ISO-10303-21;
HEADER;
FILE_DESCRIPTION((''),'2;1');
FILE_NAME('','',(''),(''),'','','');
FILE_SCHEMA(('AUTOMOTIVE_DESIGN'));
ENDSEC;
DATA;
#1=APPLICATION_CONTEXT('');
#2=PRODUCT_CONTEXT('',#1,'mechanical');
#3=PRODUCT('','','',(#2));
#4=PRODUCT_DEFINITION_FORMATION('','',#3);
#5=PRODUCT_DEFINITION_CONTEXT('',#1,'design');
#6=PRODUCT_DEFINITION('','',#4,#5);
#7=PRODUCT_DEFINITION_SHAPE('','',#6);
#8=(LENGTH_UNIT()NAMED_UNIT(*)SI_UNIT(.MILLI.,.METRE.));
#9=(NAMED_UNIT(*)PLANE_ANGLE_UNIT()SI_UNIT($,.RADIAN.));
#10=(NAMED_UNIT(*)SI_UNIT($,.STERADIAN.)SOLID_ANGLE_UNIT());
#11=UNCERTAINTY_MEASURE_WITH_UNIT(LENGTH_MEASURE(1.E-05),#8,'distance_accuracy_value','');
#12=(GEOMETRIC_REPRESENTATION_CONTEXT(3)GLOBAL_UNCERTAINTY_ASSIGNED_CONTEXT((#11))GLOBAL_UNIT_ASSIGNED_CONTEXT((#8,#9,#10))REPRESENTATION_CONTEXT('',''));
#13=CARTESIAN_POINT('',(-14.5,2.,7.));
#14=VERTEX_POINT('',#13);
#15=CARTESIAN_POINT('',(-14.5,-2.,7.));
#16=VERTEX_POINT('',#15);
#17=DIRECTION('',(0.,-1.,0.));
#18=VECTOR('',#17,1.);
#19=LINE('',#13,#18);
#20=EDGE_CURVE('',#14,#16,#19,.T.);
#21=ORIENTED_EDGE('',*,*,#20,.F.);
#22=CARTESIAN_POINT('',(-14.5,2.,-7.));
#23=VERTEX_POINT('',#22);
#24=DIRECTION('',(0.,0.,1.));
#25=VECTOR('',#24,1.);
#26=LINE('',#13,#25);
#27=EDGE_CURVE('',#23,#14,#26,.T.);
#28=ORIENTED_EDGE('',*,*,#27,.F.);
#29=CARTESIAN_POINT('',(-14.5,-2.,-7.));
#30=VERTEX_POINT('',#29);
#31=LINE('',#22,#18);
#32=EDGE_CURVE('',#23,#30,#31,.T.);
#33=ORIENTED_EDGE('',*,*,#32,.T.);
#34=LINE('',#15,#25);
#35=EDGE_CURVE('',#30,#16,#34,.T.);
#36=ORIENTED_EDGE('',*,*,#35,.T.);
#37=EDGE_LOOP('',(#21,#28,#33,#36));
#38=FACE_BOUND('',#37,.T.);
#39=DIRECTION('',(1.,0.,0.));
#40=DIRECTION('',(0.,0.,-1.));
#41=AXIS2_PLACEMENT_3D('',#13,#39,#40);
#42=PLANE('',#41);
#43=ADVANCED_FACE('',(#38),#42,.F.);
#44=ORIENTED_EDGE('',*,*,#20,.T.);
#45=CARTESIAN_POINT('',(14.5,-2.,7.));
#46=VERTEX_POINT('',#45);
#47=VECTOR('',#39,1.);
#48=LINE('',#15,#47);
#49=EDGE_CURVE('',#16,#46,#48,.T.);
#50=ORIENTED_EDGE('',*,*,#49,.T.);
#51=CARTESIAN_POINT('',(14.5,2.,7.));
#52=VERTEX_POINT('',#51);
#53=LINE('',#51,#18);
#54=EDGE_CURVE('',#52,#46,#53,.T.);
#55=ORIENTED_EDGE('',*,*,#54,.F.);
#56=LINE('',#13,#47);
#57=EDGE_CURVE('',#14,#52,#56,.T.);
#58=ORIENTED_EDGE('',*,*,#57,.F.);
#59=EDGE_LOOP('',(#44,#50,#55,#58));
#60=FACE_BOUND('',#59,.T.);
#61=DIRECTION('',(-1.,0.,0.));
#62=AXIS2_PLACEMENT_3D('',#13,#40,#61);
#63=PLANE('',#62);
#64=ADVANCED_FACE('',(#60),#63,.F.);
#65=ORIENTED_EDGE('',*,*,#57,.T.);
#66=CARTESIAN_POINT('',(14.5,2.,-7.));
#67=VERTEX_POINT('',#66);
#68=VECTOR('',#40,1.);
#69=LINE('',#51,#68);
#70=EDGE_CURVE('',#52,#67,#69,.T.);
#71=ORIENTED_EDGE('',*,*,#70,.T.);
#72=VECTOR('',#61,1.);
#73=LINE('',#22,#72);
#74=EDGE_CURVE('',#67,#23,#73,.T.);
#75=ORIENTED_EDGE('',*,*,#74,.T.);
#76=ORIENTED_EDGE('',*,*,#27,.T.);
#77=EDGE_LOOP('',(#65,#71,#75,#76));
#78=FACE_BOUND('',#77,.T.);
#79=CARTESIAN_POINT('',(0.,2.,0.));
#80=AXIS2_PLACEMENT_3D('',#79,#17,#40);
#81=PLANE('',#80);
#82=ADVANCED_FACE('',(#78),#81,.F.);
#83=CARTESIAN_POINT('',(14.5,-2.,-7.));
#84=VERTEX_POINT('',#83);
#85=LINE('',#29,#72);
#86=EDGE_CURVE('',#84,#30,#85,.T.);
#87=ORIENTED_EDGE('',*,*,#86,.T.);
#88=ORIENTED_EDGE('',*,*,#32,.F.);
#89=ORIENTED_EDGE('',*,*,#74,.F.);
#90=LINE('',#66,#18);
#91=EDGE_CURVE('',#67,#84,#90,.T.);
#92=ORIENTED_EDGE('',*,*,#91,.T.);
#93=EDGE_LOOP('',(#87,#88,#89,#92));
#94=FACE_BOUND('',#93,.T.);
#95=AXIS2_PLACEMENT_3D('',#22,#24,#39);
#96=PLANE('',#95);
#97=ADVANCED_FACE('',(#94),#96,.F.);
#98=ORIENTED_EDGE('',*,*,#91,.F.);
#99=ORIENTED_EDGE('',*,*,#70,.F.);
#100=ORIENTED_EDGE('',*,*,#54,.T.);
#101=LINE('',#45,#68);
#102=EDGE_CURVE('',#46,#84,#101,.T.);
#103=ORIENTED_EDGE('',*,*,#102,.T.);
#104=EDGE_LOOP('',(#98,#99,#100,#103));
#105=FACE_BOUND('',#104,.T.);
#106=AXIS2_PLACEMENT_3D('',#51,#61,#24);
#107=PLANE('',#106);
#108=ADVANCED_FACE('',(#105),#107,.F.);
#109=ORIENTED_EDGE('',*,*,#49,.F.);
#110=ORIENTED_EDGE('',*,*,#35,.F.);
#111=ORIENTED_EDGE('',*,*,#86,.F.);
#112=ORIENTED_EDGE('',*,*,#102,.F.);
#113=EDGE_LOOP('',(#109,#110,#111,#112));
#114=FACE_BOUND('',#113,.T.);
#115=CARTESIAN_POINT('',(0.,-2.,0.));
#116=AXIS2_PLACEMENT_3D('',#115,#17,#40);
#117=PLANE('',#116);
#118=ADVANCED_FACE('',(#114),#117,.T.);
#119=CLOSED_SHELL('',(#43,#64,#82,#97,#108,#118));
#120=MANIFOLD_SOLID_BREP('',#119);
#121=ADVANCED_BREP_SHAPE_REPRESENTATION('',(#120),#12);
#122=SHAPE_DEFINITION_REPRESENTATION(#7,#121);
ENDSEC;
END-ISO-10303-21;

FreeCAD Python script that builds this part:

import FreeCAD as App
import Part
import Sketcher

V = App.Vector
Q = App.Units.Quantity

doc = App.newDocument("Part")
body = doc.addObject("PartDesign::Body", "Body")

# Sketch on XZ plane
sketch1 = doc.addObject("Sketcher::SketchObject", "Sketch")
body.addObject(sketch1)
sketch1.AttachmentSupport = (doc.XZ_Plane, [""])
sketch1.MapMode = "FlatFace"
sketch1.addGeometry([
    Part.LineSegment(V(-14, -7, 0), V(-14, 7, 0)),
    Part.LineSegment(V(-14, 7, 0), V(14, 7, 0)),
    Part.LineSegment(V(14, 7, 0), V(14, -7, 0)),
    Part.LineSegment(V(14, -7, 0), V(-14, -7, 0)),
], False)
sketch1.addConstraint([
    Sketcher.Constraint("Coincident", 0, 2, 1, 1),
    Sketcher.Constraint("Coincident", 1, 2, 2, 1),
    Sketcher.Constraint("Coincident", 2, 2, 3, 1),
    Sketcher.Constraint("Coincident", 3, 2, 0, 1),
    Sketcher.Constraint("Vertical", 0),
    Sketcher.Constraint("Horizontal", 1),
    Sketcher.Constraint("Vertical", 2),
    Sketcher.Constraint("Horizontal", 3),
    Sketcher.Constraint("Symmetric", 0, 2, 2, 2, -1, 1),
    Sketcher.Constraint("DistanceX", 1, 1, 1, 2, Q("29 mm")),
    Sketcher.Constraint("DistanceY", 0, 1, 0, 2, Q("14 mm")),
])
pad1 = doc.addObject("PartDesign::Pad", "Pad")
body.addObject(pad1)
pad1.Profile = sketch1
pad1.Length = 4
pad1.Midplane = True

doc.recompute()
